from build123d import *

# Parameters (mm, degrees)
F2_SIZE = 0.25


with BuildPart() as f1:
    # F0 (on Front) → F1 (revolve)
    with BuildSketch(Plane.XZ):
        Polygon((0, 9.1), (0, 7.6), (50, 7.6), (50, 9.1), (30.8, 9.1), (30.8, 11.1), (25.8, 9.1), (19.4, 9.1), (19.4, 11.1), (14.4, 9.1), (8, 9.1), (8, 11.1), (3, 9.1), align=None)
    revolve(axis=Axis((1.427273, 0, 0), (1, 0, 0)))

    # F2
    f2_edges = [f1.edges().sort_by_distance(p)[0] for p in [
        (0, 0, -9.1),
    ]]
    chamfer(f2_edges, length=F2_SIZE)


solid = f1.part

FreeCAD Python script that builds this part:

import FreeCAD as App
import Part
import Sketcher

V = App.Vector


def edges_at(feature, points):
    """Names of the edges that pass closest to the given points."""
    edges = feature.Shape.Edges
    near = lambda p: min(range(len(edges)), key=lambda i: edges[i].distToShape(Part.Vertex(*p))[0])
    return sorted({f"Edge{near(p) + 1}" for p in points})


def add_polygon(sketch, points):
    """Adds a closed chain of lines whose ends are joined by coincident constraints."""
    first, n = sketch.GeometryCount, len(points)
    for a, b in zip(points, points[1:] + points[:1]):
        sketch.addGeometry(Part.LineSegment(App.Vector(*a, 0), App.Vector(*b, 0)), False)
    for i in range(n):
        sketch.addConstraint(Sketcher.Constraint("Coincident", first + i, 2, first + (i + 1) % n, 1))

doc = App.newDocument("Part")
body = doc.addObject("PartDesign::Body", "Body")

sketch1 = body.newObject("Sketcher::SketchObject", "Sketch")
sketch1.AttachmentSupport = (doc.getObject("XZ_Plane"), [""])
sketch1.MapMode = "FlatFace"
add_polygon(sketch1, [(0, 9.1), (0, 7.6), (50, 7.6), (50, 9.1), (30.8, 9.1), (30.8, 11.1), (25.8, 9.1), (19.4, 9.1), (19.4, 11.1), (14.4, 9.1), (8, 9.1), (8, 11.1), (3, 9.1)])
sketch1.addConstraint([
    Sketcher.Constraint("Vertical", 0),
    Sketcher.Constraint("Horizontal", 1),
    Sketcher.Constraint("Vertical", 2),
    Sketcher.Constraint("Horizontal", 3),
    Sketcher.Constraint("Vertical", 4),
    Sketcher.Constraint("Horizontal", 6),
    Sketcher.Constraint("Vertical", 7),
    Sketcher.Constraint("Horizontal", 9),
    Sketcher.Constraint("Vertical", 10),
    Sketcher.Constraint("Horizontal", 12),
    Sketcher.Constraint("PointOnObject", 0, 2, -2),
    Sketcher.Constraint("Parallel", 5, 8),
    Sketcher.Constraint("Parallel", 8, 11),
    Sketcher.Constraint("Horizontal", 3, 2, 5, 2),
    Sketcher.Constraint("Horizontal", 4, 2, 7, 2),
    Sketcher.Constraint("Horizontal", 6, 2, 8, 2),
    Sketcher.Constraint("Horizontal", 7, 2, 10, 2),
    Sketcher.Constraint("Horizontal", 9, 2, 11, 2),
    Sketcher.Constraint("Equal", 6, 9),
    Sketcher.Constraint("DistanceX", 1, 1, 1, 2, 50.0),
    Sketcher.Constraint("DistanceX", 12, 2, 12, 1, 3.0),
    Sketcher.Constraint("DistanceY", 4, 1, 4, 2, 2.0),
    Sketcher.Constraint("DistanceX", 3, 2, 3, 1, 19.2),
    Sketcher.Constraint("DistanceX", 6, 2, 6, 1, 6.4),
    Sketcher.Constraint("DistanceY", 0, 2, 0, 1, 1.5),
    Sketcher.Constraint("DistanceY", -1, 1, 0, 2, 7.6),
])
revolution = body.newObject("PartDesign::Revolution", "Revolution")
revolution.Profile = sketch1
revolution.ReferenceAxis = (sketch1, ["H_Axis"])
revolution.Angle = 360
doc.recompute()

chamfer = body.newObject("PartDesign::Chamfer", "Chamfer")
chamfer.Base = (revolution, edges_at(revolution, [(0, 0, -9.1)]))
chamfer.Size = 0.25

doc.recompute()
